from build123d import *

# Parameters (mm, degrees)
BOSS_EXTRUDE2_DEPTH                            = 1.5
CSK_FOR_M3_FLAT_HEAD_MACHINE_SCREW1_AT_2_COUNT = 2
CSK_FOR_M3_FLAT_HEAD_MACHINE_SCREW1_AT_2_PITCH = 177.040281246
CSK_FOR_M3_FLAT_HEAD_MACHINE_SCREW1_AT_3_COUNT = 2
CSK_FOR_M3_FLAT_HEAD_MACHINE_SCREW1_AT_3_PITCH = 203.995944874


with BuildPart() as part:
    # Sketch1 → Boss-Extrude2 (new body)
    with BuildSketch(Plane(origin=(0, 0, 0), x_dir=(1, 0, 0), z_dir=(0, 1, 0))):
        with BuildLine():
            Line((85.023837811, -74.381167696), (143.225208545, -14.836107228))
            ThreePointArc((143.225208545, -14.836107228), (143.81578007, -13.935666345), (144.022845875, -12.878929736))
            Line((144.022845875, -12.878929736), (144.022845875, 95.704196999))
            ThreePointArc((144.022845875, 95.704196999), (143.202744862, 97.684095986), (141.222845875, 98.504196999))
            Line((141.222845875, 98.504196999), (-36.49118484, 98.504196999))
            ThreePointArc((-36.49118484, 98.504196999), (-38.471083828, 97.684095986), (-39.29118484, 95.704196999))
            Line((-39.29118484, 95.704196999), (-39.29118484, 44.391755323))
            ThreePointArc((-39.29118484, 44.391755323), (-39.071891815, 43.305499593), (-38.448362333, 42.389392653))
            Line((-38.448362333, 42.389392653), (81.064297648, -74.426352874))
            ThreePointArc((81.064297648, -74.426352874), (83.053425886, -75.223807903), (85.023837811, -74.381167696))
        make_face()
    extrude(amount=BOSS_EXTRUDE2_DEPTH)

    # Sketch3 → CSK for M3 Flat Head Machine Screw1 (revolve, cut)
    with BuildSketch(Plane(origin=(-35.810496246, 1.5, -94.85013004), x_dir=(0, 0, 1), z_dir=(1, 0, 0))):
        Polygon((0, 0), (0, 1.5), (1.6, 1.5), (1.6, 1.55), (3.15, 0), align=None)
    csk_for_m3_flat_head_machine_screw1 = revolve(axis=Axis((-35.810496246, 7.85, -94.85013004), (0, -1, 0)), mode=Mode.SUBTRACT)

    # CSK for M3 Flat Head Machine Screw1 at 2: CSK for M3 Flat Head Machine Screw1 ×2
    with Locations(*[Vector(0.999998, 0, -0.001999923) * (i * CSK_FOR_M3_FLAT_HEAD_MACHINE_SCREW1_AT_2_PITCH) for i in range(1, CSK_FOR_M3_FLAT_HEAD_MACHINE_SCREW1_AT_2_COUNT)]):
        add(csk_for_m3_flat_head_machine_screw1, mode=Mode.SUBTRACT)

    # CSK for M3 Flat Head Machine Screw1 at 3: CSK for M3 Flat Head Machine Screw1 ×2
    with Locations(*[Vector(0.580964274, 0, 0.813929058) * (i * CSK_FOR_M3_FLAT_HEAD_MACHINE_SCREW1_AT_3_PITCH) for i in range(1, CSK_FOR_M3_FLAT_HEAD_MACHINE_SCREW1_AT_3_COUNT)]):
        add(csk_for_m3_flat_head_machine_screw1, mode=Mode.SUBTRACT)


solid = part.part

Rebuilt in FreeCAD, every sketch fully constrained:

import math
import FreeCAD as App
import Part
import Sketcher
Q = App.Units.Quantity

doc = App.newDocument("Part")
body = doc.addObject("PartDesign::Body", "Body")

# Sketch on XZ plane
sketch1 = doc.addObject("Sketcher::SketchObject", "Sketch")
body.addObject(sketch1)
sketch1.AttachmentSupport = (doc.XZ_Plane, [""])
sketch1.MapMode = "FlatFace"
sketch1.addGeometry([
    Part.LineSegment(App.Vector(85, 74.4, 0), App.Vector(143.2, 14.8, 0)),  # 0
    Part.ArcOfCircle(Part.Circle(App.Vector(141.2, 12.9, 0), App.Vector(0, 0, 1), 2.8), math.radians(0), math.radians(44)),  # 1
    Part.LineSegment(App.Vector(144, 12.9, 0), App.Vector(144, -95.7, 0)),  # 2
    Part.ArcOfCircle(Part.Circle(App.Vector(141.2, -95.7, 0), App.Vector(0, 0, 1), 2.8), math.radians(-90), math.radians(0)),  # 3
    Part.LineSegment(App.Vector(141.2, -98.5, 0), App.Vector(-36.5, -98.5, 0)),  # 4
    Part.ArcOfCircle(Part.Circle(App.Vector(-36.5, -95.7, 0), App.Vector(0, 0, 1), 2.8), math.radians(180), math.radians(270)),  # 5
    Part.LineSegment(App.Vector(-39.3, -95.7, 0), App.Vector(-39.3, -44.4, 0)),  # 6
    Part.ArcOfCircle(Part.Circle(App.Vector(-36.5, -44.4, 0), App.Vector(0, 0, 1), 2.8), math.radians(134), math.radians(180)),  # 7
    Part.LineSegment(App.Vector(-38.4, -42.4, 0), App.Vector(81.1, 74.4, 0)),  # 8
    Part.ArcOfCircle(Part.Circle(App.Vector(83, 72.4, 0), App.Vector(0, 0, 1), 2.8), math.radians(44), math.radians(134)),  # 9
], False)
sketch1.addConstraint([
    Sketcher.Constraint("Tangent", 0, 2, 1, 2),
    Sketcher.Constraint("Tangent", 1, 1, 2, 1),
    Sketcher.Constraint("Tangent", 2, 2, 3, 2),
    Sketcher.Constraint("Tangent", 3, 1, 4, 1),
    Sketcher.Constraint("Tangent", 4, 2, 5, 2),
    Sketcher.Constraint("Tangent", 5, 1, 6, 1),
    Sketcher.Constraint("Tangent", 6, 2, 7, 2),
    Sketcher.Constraint("Tangent", 7, 1, 8, 1),
    Sketcher.Constraint("Tangent", 8, 2, 9, 2),
    Sketcher.Constraint("Tangent", 9, 1, 0, 1),
    Sketcher.Constraint("Vertical", 2),
    Sketcher.Constraint("Horizontal", 4),
    Sketcher.Constraint("Vertical", 6),
    Sketcher.Constraint("Equal", 1, 3),
    Sketcher.Constraint("Equal", 3, 5),
    Sketcher.Constraint("Equal", 5, 7),
    Sketcher.Constraint("Equal", 7, 9),
    Sketcher.Constraint("Perpendicular", 0, 8),
    Sketcher.Constraint("Radius", 1, 2.8),
    Sketcher.Constraint("Distance", 8, 167.120299),
    Sketcher.Constraint("DistanceX", 4, 2, 4, 1, 177.714031),
    Sketcher.Constraint("DistanceY", 6, 1, 6, 2, 51.312442),
    Sketcher.Constraint("Distance", 0, 83.264721),
    Sketcher.Constraint("DistanceY", -1, 1, 1, 3, 12.87893),
    Sketcher.Constraint("DistanceX", -1, 1, 0, 2, 143.225209),
])
pad1 = doc.addObject("PartDesign::Pad", "Pad")
body.addObject(pad1)
pad1.Profile = sketch1
pad1.Length = 1.5
pad1.Reversed = True

# Sketch on YZ plane
sketch2 = doc.addObject("Sketcher::SketchObject", "Sketch001")
body.addObject(sketch2)
sketch2.AttachmentSupport = (doc.YZ_Plane, [""])
sketch2.MapMode = "FlatFace"
sketch2.AttachmentOffset = App.Placement(App.Vector(0, 0, -35.810496), App.Rotation())
sketch2.addGeometry([
    Part.LineSegment(App.Vector(0, -94.85, 0), App.Vector(1.5, -94.85, 0)),  # 0
    Part.LineSegment(App.Vector(1.5, -94.85, 0), App.Vector(1.5, -91.7, 0)),  # 1
    Part.LineSegment(App.Vector(1.5, -91.7, 0), App.Vector(-0.05, -93.25, 0)),  # 2
    Part.LineSegment(App.Vector(-0.05, -93.25, 0), App.Vector(0, -93.25, 0)),  # 3
    Part.LineSegment(App.Vector(0, -93.25, 0), App.Vector(0, -94.85, 0)),  # 4
], False)
sketch2.addGeometry(Part.LineSegment(App.Vector(1.5, -94.85, 0), App.Vector(-0.05, -94.85, 0)), True)  # axis
sketch2.addConstraint([
    Sketcher.Constraint("Coincident", 0, 2, 1, 1),
    Sketcher.Constraint("Coincident", 1, 2, 2, 1),
    Sketcher.Constraint("Coincident", 2, 2, 3, 1),
    Sketcher.Constraint("Coincident", 3, 2, 4, 1),
    Sketcher.Constraint("Coincident", 4, 2, 0, 1),
    Sketcher.Constraint("Horizontal", 0),
    Sketcher.Constraint("Vertical", 1),
    Sketcher.Constraint("Horizontal", 3),
    Sketcher.Constraint("Vertical", 4),
    Sketcher.Constraint("Horizontal", 5),
    Sketcher.Constraint("Coincident", 5, 1, 0, 2),
    Sketcher.Constraint("PointOnObject", 3, 2, -2),
    Sketcher.Constraint("Vertical", 2, 2, 5, 2),
    Sketcher.Constraint("Angle", 2, Q("-135 deg")),
    Sketcher.Constraint("DistanceX", 0, 1, 0, 2, 1.5),
    Sketcher.Constraint("DistanceY", 4, 2, 4, 1, 1.6),
    Sketcher.Constraint("DistanceX", 3, 1, 3, 2, 0.05),
    Sketcher.Constraint("DistanceY", 0, 2, -1, 1, 94.85013),
])
groove = doc.addObject("PartDesign::Groove", "Groove")
body.addObject(groove)
groove.Profile = sketch2
groove.ReferenceAxis = (sketch2, ["Axis0"])
groove.Angle = 360
doc.recompute()

datumline = doc.addObject("PartDesign::Line", "DatumLine")
body.addObject(datumline)
datumline.Placement = App.Placement(App.Vector(0, 0, 0), App.Rotation(App.Vector(0, 0, 1), App.Vector(0.999998, 0, -0.001999923)))
linearpattern = doc.addObject("PartDesign::LinearPattern", "LinearPattern")
body.addObject(linearpattern)
linearpattern.Originals = [groove]
linearpattern.Direction = (datumline, [""])
linearpattern.Mode = "offset"
linearpattern.Offset = 177.040281
linearpattern.Occurrences = 2
body.Tip = linearpattern
doc.recompute()

datumline2 = doc.addObject("PartDesign::Line", "DatumLine001")
body.addObject(datumline2)
datumline2.Placement = App.Placement(App.Vector(0, 0, 0), App.Rotation(App.Vector(0, 0, 1), App.Vector(0.580964274, 0, 0.813929058)))
linearpattern2 = doc.addObject("PartDesign::LinearPattern", "LinearPattern001")
body.addObject(linearpattern2)
linearpattern2.Originals = [groove]
linearpattern2.Direction = (datumline2, [""])
linearpattern2.Mode = "offset"
linearpattern2.Offset = 203.995945
linearpattern2.Occurrences = 2
body.Tip = linearpattern2

doc.recompute()
